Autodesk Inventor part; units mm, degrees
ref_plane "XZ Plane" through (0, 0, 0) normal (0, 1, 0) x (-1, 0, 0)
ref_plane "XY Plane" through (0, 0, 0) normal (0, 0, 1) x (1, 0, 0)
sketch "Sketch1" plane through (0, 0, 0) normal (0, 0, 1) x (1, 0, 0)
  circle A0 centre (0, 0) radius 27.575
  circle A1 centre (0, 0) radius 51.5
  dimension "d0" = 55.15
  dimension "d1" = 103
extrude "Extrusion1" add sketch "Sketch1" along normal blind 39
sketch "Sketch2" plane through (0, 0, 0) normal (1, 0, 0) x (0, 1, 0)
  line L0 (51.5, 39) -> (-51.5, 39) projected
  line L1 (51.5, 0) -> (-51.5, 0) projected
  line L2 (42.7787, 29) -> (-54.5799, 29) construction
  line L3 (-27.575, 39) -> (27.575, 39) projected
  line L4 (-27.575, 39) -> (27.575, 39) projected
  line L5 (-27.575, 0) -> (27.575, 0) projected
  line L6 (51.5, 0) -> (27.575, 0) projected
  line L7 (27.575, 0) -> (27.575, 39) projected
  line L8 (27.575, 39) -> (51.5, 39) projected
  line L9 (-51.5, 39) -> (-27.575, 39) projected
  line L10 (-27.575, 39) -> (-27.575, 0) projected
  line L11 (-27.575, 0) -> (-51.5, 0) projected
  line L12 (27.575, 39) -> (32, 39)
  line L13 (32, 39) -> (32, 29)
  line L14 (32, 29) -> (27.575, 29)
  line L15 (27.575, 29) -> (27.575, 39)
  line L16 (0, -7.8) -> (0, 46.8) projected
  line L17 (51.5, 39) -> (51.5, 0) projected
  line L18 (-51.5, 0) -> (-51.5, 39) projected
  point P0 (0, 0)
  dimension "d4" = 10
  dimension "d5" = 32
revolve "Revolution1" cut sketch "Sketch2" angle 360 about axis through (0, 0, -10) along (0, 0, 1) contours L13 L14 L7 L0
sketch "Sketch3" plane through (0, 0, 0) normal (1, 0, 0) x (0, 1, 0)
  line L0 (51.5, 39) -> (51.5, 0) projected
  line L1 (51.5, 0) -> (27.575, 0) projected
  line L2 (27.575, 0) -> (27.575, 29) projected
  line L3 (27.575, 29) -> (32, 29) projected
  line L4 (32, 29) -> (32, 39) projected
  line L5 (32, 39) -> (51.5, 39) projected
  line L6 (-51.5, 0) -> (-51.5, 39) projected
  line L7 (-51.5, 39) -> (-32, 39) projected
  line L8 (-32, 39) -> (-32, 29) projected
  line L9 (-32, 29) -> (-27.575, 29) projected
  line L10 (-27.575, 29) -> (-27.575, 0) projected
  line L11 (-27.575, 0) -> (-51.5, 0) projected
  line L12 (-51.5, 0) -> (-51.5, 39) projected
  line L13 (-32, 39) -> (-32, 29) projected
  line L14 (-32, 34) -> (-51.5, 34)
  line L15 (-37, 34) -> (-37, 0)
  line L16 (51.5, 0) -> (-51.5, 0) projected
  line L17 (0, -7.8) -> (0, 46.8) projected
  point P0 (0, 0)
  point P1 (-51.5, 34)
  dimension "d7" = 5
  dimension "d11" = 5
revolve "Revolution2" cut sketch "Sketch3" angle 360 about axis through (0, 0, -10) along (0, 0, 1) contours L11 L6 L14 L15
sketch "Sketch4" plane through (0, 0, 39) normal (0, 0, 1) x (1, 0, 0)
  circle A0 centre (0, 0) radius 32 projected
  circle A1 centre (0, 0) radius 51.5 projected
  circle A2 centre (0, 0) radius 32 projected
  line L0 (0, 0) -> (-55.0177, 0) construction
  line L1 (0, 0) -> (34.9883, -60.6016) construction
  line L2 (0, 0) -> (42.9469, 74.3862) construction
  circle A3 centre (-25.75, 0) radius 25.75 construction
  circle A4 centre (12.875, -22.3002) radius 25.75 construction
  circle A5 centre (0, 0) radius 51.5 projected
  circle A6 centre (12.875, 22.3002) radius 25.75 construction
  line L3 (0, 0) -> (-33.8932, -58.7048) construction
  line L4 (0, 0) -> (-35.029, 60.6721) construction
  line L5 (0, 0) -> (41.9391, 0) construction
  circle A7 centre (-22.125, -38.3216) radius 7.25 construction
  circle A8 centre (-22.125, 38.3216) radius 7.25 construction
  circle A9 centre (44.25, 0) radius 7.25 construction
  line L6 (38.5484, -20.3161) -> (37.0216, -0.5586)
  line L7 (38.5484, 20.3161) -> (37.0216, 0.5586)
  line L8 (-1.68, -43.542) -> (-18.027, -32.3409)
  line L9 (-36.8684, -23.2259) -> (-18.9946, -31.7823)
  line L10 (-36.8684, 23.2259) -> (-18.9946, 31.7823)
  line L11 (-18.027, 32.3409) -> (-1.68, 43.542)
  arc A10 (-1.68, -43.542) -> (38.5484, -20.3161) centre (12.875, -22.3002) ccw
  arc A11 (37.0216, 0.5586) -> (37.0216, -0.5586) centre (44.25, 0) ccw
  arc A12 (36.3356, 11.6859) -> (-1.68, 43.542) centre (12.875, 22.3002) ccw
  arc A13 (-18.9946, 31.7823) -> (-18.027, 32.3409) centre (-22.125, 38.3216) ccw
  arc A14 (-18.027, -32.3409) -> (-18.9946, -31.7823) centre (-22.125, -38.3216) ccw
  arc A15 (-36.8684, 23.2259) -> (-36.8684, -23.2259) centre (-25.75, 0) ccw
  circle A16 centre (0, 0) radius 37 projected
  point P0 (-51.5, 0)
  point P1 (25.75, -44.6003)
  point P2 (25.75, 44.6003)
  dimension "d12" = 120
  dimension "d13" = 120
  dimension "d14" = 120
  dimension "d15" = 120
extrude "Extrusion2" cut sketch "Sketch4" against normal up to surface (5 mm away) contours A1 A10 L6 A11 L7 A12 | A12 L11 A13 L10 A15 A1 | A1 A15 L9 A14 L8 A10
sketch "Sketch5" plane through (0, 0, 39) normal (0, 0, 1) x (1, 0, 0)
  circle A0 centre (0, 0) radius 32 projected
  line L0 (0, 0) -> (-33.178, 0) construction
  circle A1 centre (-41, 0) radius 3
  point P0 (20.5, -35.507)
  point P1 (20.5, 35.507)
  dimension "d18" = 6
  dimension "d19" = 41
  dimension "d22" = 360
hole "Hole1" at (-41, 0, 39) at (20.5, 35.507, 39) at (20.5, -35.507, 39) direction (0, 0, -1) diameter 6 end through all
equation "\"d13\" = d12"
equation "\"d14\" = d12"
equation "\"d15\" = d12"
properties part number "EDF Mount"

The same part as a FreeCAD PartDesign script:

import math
import FreeCAD as App
import Part
import Sketcher

doc = App.newDocument("Part")
body = doc.addObject("PartDesign::Body", "Body")

# Sketch on XY plane
sketch1 = body.newObject("Sketcher::SketchObject", "Sketch")
sketch1.AttachmentSupport = (doc.getObject("XY_Plane"), [""])
sketch1.MapMode = "FlatFace"
sketch1.addGeometry([
    Part.Circle(App.Vector(0, 0, 0), App.Vector(0, 0, 1), 52),
    Part.Circle(App.Vector(0, 0, 0), App.Vector(0, 0, 1), 28),
], False)
sketch1.addConstraint([
    Sketcher.Constraint("Coincident", 0, 3, -1, 1),
    Sketcher.Constraint("Coincident", 1, 3, -1, 1),
    Sketcher.Constraint("Diameter", 0, 103.0),
    Sketcher.Constraint("Diameter", 1, 55.15),
])
pad1 = body.newObject("PartDesign::Pad", "Pad")
pad1.Profile = sketch1
pad1.Length = 39

# Sketch on YZ plane
sketch2 = body.newObject("Sketcher::SketchObject", "Sketch001")
sketch2.AttachmentSupport = (doc.getObject("YZ_Plane"), [""])
sketch2.MapMode = "FlatFace"
sketch2.addGeometry([
    Part.LineSegment(App.Vector(32, 29, 0), App.Vector(32, 39, 0)),
    Part.LineSegment(App.Vector(32, 39, 0), App.Vector(27.6, 39, 0)),
    Part.LineSegment(App.Vector(27.6, 39, 0), App.Vector(27.6, 29, 0)),
    Part.LineSegment(App.Vector(27.6, 29, 0), App.Vector(32, 29, 0)),
], False)
sketch2.addConstraint([
    Sketcher.Constraint("Coincident", 0, 2, 1, 1),
    Sketcher.Constraint("Coincident", 1, 2, 2, 1),
    Sketcher.Constraint("Coincident", 2, 2, 3, 1),
    Sketcher.Constraint("Coincident", 3, 2, 0, 1),
    Sketcher.Constraint("Vertical", 0),
    Sketcher.Constraint("Horizontal", 1),
    Sketcher.Constraint("Vertical", 2),
    Sketcher.Constraint("Horizontal", 3),
    Sketcher.Constraint("DistanceY", 0, 1, 0, 2, 10.0),
    Sketcher.Constraint("DistanceX", -1, 1, 0, 2, 32.0),
    Sketcher.Constraint("DistanceY", -1, 1, 0, 2, 39.0),
    Sketcher.Constraint("DistanceX", 1, 2, 1, 1, 4.425),
])
groove = body.newObject("PartDesign::Groove", "Groove")
groove.Profile = sketch2
groove.ReferenceAxis = (sketch2, ["V_Axis"])
groove.Angle = 360

# Sketch on YZ plane
sketch3 = body.newObject("Sketcher::SketchObject", "Sketch002")
sketch3.AttachmentSupport = (doc.getObject("YZ_Plane"), [""])
sketch3.MapMode = "FlatFace"
sketch3.addGeometry([
    Part.LineSegment(App.Vector(-52, 0, 0), App.Vector(-37, 0, 0)),
    Part.LineSegment(App.Vector(-37, 0, 0), App.Vector(-37, 34, 0)),
    Part.LineSegment(App.Vector(-37, 34, 0), App.Vector(-52, 34, 0)),
    Part.LineSegment(App.Vector(-52, 34, 0), App.Vector(-52, 0, 0)),
], False)
sketch3.addConstraint([
    Sketcher.Constraint("Coincident", 0, 2, 1, 1),
    Sketcher.Constraint("Coincident", 1, 2, 2, 1),
    Sketcher.Constraint("Coincident", 2, 2, 3, 1),
    Sketcher.Constraint("Coincident", 3, 2, 0, 1),
    Sketcher.Constraint("Horizontal", 0),
    Sketcher.Constraint("Vertical", 1),
    Sketcher.Constraint("Horizontal", 2),
    Sketcher.Constraint("Vertical", 3),
    Sketcher.Constraint("PointOnObject", 0, 2, -1),
    Sketcher.Constraint("DistanceY", 1, 1, 1, 2, 34.0),
    Sketcher.Constraint("DistanceX", 0, 1, 0, 2, 14.5),
    Sketcher.Constraint("DistanceX", 0, 2, -1, 1, 37.0),
])
groove2 = body.newObject("PartDesign::Groove", "Groove001")
groove2.Profile = sketch3
groove2.ReferenceAxis = (sketch3, ["V_Axis"])
groove2.Angle = 360

# Sketch on XY plane
sketch4 = body.newObject("Sketcher::SketchObject", "Sketch003")
sketch4.AttachmentSupport = (doc.getObject("XY_Plane"), [""])
sketch4.MapMode = "FlatFace"
sketch4.AttachmentOffset = App.Placement(App.Vector(0, 0, 39), App.Rotation())
sketch4.addGeometry([
    Part.ArcOfCircle(Part.Circle(App.Vector(0, 0, 0), App.Vector(0, 0, 1), 51.5), math.radians(-60.000098), math.radians(60.000023)),  # 0
    Part.ArcOfCircle(Part.Circle(App.Vector(12.875, 22.3002, 0), App.Vector(0, 0, 1), 25.75), math.radians(-4.419167), math.radians(59.999995)),  # 1
    Part.LineSegment(App.Vector(38.5484, 20.3161, 0), App.Vector(37.0216, 0.5586, 0)),  # 2
    Part.ArcOfCircle(Part.Circle(App.Vector(44.25, 0, 0), App.Vector(0, 0, 1), 7.249952), math.radians(175.58105), math.radians(184.41895)),  # 3
    Part.LineSegment(App.Vector(37.0216, -0.5586, 0), App.Vector(38.5484, -20.3161, 0)),  # 4
    Part.ArcOfCircle(Part.Circle(App.Vector(12.875, -22.3002, 0), App.Vector(0, 0, 1), 25.749992), math.radians(-60.000145), math.radians(4.419167)),  # 5
    Part.ArcOfCircle(Part.Circle(App.Vector(12.875, 22.3002, 0), App.Vector(0, 0, 1), 25.75), math.radians(59.999995), math.radians(124.41916)),  # 6
    Part.ArcOfCircle(Part.Circle(App.Vector(0, 0, 0), App.Vector(0, 0, 1), 51.5), math.radians(60.000023), math.radians(179.999999)),  # 7
    Part.ArcOfCircle(Part.Circle(App.Vector(-25.75, 0, 0), App.Vector(0, 0, 1), 25.749976), math.radians(115.580763), math.radians(179.999999)),  # 8
    Part.LineSegment(App.Vector(-36.8684, 23.2259, 0), App.Vector(-18.9946, 31.7823, 0)),  # 9
    Part.ArcOfCircle(Part.Circle(App.Vector(-22.127859, 38.327025, 0), App.Vector(0, 0, 1), 7.256082), math.radians(-64.41743), math.radians(-55.586488)),  # 10
    Part.LineSegment(App.Vector(-18.027, 32.3409, 0), App.Vector(-1.68, 43.542, 0)),  # 11
    Part.ArcOfCircle(Part.Circle(App.Vector(0, 0, 0), App.Vector(0, 0, 1), 51.5), math.radians(179.999999), math.radians(299.999902)),  # 12
    Part.ArcOfCircle(Part.Circle(App.Vector(12.875, -22.3002, 0), App.Vector(0, 0, 1), 25.749992), math.radians(-124.41916), math.radians(-60.000145)),  # 13
    Part.LineSegment(App.Vector(-1.68, -43.542, 0), App.Vector(-18.027, -32.3409, 0)),  # 14
    Part.ArcOfCircle(Part.Circle(App.Vector(-22.121737, -38.31642, 0), App.Vector(0, 0, 1), 7.243874), math.radians(55.579032), math.radians(64.424887)),  # 15
    Part.LineSegment(App.Vector(-18.9946, -31.7823, 0), App.Vector(-36.8684, -23.2259, 0)),  # 16
    Part.ArcOfCircle(Part.Circle(App.Vector(-25.75, 0, 0), App.Vector(0, 0, 1), 25.749976), math.radians(179.999999), math.radians(244.419237)),  # 17
], False)
sketch4.addConstraint([
    Sketcher.Constraint("Coincident", 0, 2, 1, 2),
    Sketcher.Constraint("Coincident", 1, 1, 2, 1),
    Sketcher.Constraint("Coincident", 2, 2, 3, 1),
    Sketcher.Constraint("Coincident", 3, 2, 4, 1),
    Sketcher.Constraint("Coincident", 4, 2, 5, 2),
    Sketcher.Constraint("Coincident", 5, 1, 0, 1),
    Sketcher.Constraint("Coincident", 6, 1, 7, 1),
    Sketcher.Constraint("Coincident", 7, 2, 8, 2),
    Sketcher.Constraint("Coincident", 8, 1, 9, 1),
    Sketcher.Constraint("Coincident", 9, 2, 10, 1),
    Sketcher.Constraint("Coincident", 10, 2, 11, 1),
    Sketcher.Constraint("Coincident", 11, 2, 6, 2),
    Sketcher.Constraint("Coincident", 12, 2, 13, 2),
    Sketcher.Constraint("Coincident", 13, 1, 14, 1),
    Sketcher.Constraint("Coincident", 14, 2, 15, 1),
    Sketcher.Constraint("Coincident", 15, 2, 16, 1),
    Sketcher.Constraint("Coincident", 16, 2, 17, 2),
    Sketcher.Constraint("Coincident", 17, 1, 12, 1),
    Sketcher.Constraint("Coincident", 0, 3, -1, 1),
    Sketcher.Constraint("Coincident", 7, 3, -1, 1),
    Sketcher.Constraint("Coincident", 12, 3, -1, 1),
    Sketcher.Constraint("Coincident", 6, 3, 1, 3),
    Sketcher.Constraint("Coincident", 13, 3, 5, 3),
    Sketcher.Constraint("Coincident", 17, 3, 8, 3),
    Sketcher.Constraint("Coincident", 6, 1, 0, 2),
    Sketcher.Constraint("Coincident", 12, 2, 5, 1),
    Sketcher.Constraint("PointOnObject", 3, 3, -1),
    Sketcher.Constraint("PointOnObject", 8, 3, -1),
    Sketcher.Constraint("PointOnObject", 7, 2, -1),
    Sketcher.Constraint("PointOnObject", 17, 1, -1),
    Sketcher.Constraint("Radius", 0, 51.5),
    Sketcher.Constraint("Radius", 1, 25.75),
    Sketcher.Constraint("Radius", 3, 7.25),
    Sketcher.Constraint("Radius", 5, 25.75),
    Sketcher.Constraint("Radius", 8, 25.75),
    Sketcher.Constraint("Radius", 10, 7.256),
    Sketcher.Constraint("Radius", 15, 7.2439),
    Sketcher.Constraint("DistanceY", 1, 3, 0, 2, 22.3),
    Sketcher.Constraint("DistanceX", 0, 2, 3, 3, 18.5),
    Sketcher.Constraint("DistanceX", -1, 1, 3, 3, 44.25),
    Sketcher.Constraint("DistanceX", -1, 1, 5, 1, 25.75),
    Sketcher.Constraint("DistanceX", 11, 2, -1, 1, 1.68),
    Sketcher.Constraint("DistanceX", 13, 1, -1, 1, 1.68),
    Sketcher.Constraint("DistanceX", -1, 1, 5, 3, 12.875),
    Sketcher.Constraint("DistanceY", -1, 1, 10, 3, 38.327),
    Sketcher.Constraint("DistanceY", -1, 1, 1, 1, 20.316),
    Sketcher.Constraint("DistanceY", 4, 2, -1, 1, 20.316),
    Sketcher.Constraint("DistanceY", -1, 1, 8, 1, 23.226),
    Sketcher.Constraint("DistanceX", 10, 2, -1, 1, 18.027),
    Sketcher.Constraint("DistanceY", -1, 1, 10, 2, 32.341),
    Sketcher.Constraint("DistanceX", 14, 2, -1, 1, 18.027),
    Sketcher.Constraint("DistanceY", 14, 2, -1, 1, 32.341),
    Sketcher.Constraint("DistanceY", 16, 2, -1, 1, 23.226),
    Sketcher.Constraint("DistanceY", 5, 1, 2, 2, 45.159),
    Sketcher.Constraint("DistanceY", 1, 3, 9, 2, 9.482),
    Sketcher.Constraint("Distance", 4, 19.8164),
    Sketcher.Constraint("Distance", 16, 19.8163),
    Sketcher.Constraint("DistanceX", 15, 3, -1, 1, 22.1217),
])
pocket1 = body.newObject("PartDesign::Pocket", "Pocket")
pocket1.Profile = sketch4
pocket1.Length = 5

# Sketch on XY plane
sketch5 = body.newObject("Sketcher::SketchObject", "Sketch004")
sketch5.AttachmentSupport = (doc.getObject("XY_Plane"), [""])
sketch5.MapMode = "FlatFace"
sketch5.AttachmentOffset = App.Placement(App.Vector(0, 0, 39), App.Rotation())
sketch5.addGeometry([
    Part.Circle(App.Vector(-41, 0, 0), App.Vector(0, 0, 1), 3),
    Part.Circle(App.Vector(20.5, 35.5, 0), App.Vector(0, 0, 1), 3),
    Part.Circle(App.Vector(20.5, -35.5, 0), App.Vector(0, 0, 1), 3),
], False)
sketch5.addConstraint([
    Sketcher.Constraint("Equal", 0, 1),
    Sketcher.Constraint("Equal", 1, 2),
    Sketcher.Constraint("Symmetric", 1, 3, 2, 3, -1),
    Sketcher.Constraint("PointOnObject", 0, 3, -1),
    Sketcher.Constraint("Diameter", 0, 6.0),
    Sketcher.Constraint("DistanceX", 0, 3, -1, 1, 41.0),
    Sketcher.Constraint("DistanceX", -1, 1, 1, 3, 20.5),
    Sketcher.Constraint("DistanceY", -1, 1, 1, 3, 35.507),
])
doc.recompute()
hole = body.newObject("PartDesign::Hole", "Hole")
hole.Profile = sketch5
hole.ThreadType = "None"
hole.Diameter = 6
hole.DepthType = "ThroughAll"

doc.recompute()
